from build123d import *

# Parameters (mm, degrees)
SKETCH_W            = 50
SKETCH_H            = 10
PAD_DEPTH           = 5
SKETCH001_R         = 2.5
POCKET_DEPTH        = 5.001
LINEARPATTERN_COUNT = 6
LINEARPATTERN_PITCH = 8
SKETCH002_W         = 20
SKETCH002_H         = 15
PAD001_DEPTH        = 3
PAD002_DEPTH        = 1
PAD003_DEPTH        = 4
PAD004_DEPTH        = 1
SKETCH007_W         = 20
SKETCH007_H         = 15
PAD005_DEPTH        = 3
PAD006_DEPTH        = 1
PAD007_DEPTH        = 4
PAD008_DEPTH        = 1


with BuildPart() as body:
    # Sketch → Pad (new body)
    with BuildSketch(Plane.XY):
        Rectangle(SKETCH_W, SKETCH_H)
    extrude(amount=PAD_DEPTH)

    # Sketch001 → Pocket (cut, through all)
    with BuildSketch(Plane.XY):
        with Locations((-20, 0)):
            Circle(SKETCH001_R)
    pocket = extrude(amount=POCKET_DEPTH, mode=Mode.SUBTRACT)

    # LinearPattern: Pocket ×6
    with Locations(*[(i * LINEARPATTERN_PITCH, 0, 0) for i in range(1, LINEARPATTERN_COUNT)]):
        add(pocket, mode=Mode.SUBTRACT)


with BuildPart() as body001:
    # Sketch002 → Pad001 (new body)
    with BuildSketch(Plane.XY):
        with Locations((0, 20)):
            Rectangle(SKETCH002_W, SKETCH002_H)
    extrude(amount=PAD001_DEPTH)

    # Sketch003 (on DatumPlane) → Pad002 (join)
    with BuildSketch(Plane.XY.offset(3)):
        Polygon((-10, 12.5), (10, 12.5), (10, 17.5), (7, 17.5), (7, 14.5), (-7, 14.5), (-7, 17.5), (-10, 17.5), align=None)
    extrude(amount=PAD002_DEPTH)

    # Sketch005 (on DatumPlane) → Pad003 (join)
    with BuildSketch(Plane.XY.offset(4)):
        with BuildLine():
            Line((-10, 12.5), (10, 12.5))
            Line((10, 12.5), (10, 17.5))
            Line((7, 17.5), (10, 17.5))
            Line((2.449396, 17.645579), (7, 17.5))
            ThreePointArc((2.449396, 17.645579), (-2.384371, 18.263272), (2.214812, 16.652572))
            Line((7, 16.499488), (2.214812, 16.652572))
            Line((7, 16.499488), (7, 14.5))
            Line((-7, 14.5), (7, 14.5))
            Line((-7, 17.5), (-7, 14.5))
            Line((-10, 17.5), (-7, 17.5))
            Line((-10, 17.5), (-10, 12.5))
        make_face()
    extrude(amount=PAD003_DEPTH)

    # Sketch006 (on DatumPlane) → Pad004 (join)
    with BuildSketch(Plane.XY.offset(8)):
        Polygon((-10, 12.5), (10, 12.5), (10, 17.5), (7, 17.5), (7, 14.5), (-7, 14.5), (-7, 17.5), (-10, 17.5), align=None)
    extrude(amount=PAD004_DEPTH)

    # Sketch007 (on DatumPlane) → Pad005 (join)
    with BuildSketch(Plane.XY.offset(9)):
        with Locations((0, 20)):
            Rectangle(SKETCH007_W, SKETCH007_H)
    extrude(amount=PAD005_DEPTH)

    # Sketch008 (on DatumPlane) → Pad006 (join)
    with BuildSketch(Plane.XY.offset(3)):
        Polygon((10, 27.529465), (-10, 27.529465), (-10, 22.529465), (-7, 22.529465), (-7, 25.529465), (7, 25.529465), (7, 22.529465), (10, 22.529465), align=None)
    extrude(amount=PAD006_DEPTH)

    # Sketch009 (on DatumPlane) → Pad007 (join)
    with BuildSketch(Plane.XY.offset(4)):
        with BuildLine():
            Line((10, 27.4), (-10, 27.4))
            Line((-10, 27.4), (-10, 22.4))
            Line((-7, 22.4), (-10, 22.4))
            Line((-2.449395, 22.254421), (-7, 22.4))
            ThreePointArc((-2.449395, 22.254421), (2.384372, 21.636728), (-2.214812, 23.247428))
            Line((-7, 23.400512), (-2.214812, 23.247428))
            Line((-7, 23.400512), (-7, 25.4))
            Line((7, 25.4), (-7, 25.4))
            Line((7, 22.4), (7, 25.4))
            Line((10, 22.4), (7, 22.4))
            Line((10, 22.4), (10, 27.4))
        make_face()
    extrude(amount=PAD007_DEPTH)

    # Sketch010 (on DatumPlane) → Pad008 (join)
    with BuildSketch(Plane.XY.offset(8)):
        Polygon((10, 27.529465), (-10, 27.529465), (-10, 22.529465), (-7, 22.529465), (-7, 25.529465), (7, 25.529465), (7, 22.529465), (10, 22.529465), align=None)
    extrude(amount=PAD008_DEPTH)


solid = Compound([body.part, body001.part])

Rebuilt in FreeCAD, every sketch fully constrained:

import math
import FreeCAD as App
import Part
import Sketcher
from FreeCAD import Vector


def add_polygon(sketch, points):
    """Adds a closed chain of lines whose ends are joined by coincident constraints."""
    first, n = sketch.GeometryCount, len(points)
    for a, b in zip(points, points[1:] + points[:1]):
        sketch.addGeometry(Part.LineSegment(App.Vector(*a, 0), App.Vector(*b, 0)), False)
    for i in range(n):
        sketch.addConstraint(Sketcher.Constraint("Coincident", first + i, 2, first + (i + 1) % n, 1))

doc = App.newDocument("Part")
body = doc.addObject("PartDesign::Body", "Body")

sketch1 = body.newObject("Sketcher::SketchObject", "Sketch")
sketch1.AttachmentSupport = (doc.getObject("XY_Plane"), [""])
sketch1.MapMode = "FlatFace"
add_polygon(sketch1, [(-25, 5), (-25, -5), (25, -5), (25, 5)])
sketch1.addConstraint([
    Sketcher.Constraint("Vertical", 0),
    Sketcher.Constraint("Horizontal", 1),
    Sketcher.Constraint("Vertical", 2),
    Sketcher.Constraint("Horizontal", 3),
    Sketcher.Constraint("Symmetric", 0, 2, 2, 2, -1, 1),
    Sketcher.Constraint("DistanceX", 1, 1, 1, 2, 50.0),
    Sketcher.Constraint("DistanceY", 0, 2, 0, 1, 10.0),
])
pad1 = body.newObject("PartDesign::Pad", "Pad")
pad1.Profile = sketch1
pad1.Length = 5

sketch2 = body.newObject("Sketcher::SketchObject", "Sketch001")
sketch2.AttachmentSupport = (doc.getObject("XY_Plane"), [""])
sketch2.MapMode = "FlatFace"
sketch2.addGeometry(Part.Circle(Vector(-20, 0, 0), Vector(0, 0, 1), 2.5), False)
sketch2.addConstraint([
    Sketcher.Constraint("PointOnObject", 0, 3, -1),
    Sketcher.Constraint("Diameter", 0, 5.0),
    Sketcher.Constraint("DistanceX", 0, 3, -1, 1, 20.0),
])
pocket1 = body.newObject("PartDesign::Pocket", "Pocket")
pocket1.Profile = sketch2
pocket1.Type = "ThroughAll"
pocket1.Reversed = True
doc.recompute()

linearpattern = body.newObject("PartDesign::LinearPattern", "LinearPattern")
linearpattern.Originals = [pocket1]
linearpattern.Direction = (doc.getObject("X_Axis"), [""])
linearpattern.Mode = "offset"
linearpattern.Offset = 8
linearpattern.Occurrences = 6
body.Tip = linearpattern
body2 = doc.addObject("PartDesign::Body", "Body001")

sketch3 = body2.newObject("Sketcher::SketchObject", "Sketch002")
sketch3.AttachmentSupport = (doc.getObject("XY_Plane001"), [""])
sketch3.MapMode = "FlatFace"
add_polygon(sketch3, [(-10, 28), (-10, 12), (10, 12), (10, 28)])
sketch3.addConstraint([
    Sketcher.Constraint("Vertical", 0),
    Sketcher.Constraint("Horizontal", 1),
    Sketcher.Constraint("Vertical", 2),
    Sketcher.Constraint("Horizontal", 3),
    Sketcher.Constraint("DistanceX", 1, 1, 1, 2, 20.0),
    Sketcher.Constraint("DistanceY", 0, 2, 0, 1, 15.0),
    Sketcher.Constraint("DistanceX", 0, 2, -1, 1, 10.0),
    Sketcher.Constraint("DistanceY", -1, 1, 0, 2, 12.5),
])
pad2 = body2.newObject("PartDesign::Pad", "Pad001")
pad2.Profile = sketch3
pad2.Length = 3

sketch4 = body2.newObject("Sketcher::SketchObject", "Sketch003")
sketch4.AttachmentSupport = (doc.getObject("XY_Plane001"), [""])
sketch4.MapMode = "FlatFace"
sketch4.AttachmentOffset = App.Placement(Vector(0, 0, 3), App.Rotation())
add_polygon(sketch4, [(-10, 12.5), (10, 12.5), (10, 17.5), (7, 17.5), (7, 14.5), (-7, 14.5), (-7, 17.5), (-10, 17.5)])
sketch4.addConstraint([
    Sketcher.Constraint("Horizontal", 0),
    Sketcher.Constraint("Vertical", 1),
    Sketcher.Constraint("Horizontal", 2),
    Sketcher.Constraint("Vertical", 3),
    Sketcher.Constraint("Horizontal", 4),
    Sketcher.Constraint("Vertical", 5),
    Sketcher.Constraint("Horizontal", 6),
    Sketcher.Constraint("Vertical", 7),
    Sketcher.Constraint("Symmetric", 2, 2, 5, 2, -2),
    Sketcher.Constraint("Equal", 2, 6),
    Sketcher.Constraint("Equal", 6, 3),
    Sketcher.Constraint("DistanceX", 0, 1, 0, 2, 20.0),
    Sketcher.Constraint("DistanceX", 2, 2, 2, 1, 3.0),
    Sketcher.Constraint("DistanceY", 1, 1, 1, 2, 5.0),
    Sketcher.Constraint("DistanceY", -1, 1, 0, 2, 12.5),
])
pad3 = body2.newObject("PartDesign::Pad", "Pad002")
pad3.Profile = sketch4
pad3.Length = 1

sketch5 = body2.newObject("Sketcher::SketchObject", "Sketch004")
sketch5.AttachmentSupport = (doc.getObject("XY_Plane001"), [""])
sketch5.MapMode = "FlatFace"
sketch5.AttachmentOffset = App.Placement(Vector(0, 0, 4), App.Rotation())
sketch5.addGeometry([
    Part.LineSegment(Vector(-10, 12.5, 0), Vector(10, 12.5, 0)),
    Part.LineSegment(Vector(10, 12.5, 0), Vector(10, 17.5, 0)),
    Part.LineSegment(Vector(10, 17.5, 0), Vector(7, 17.5, 0)),
    Part.LineSegment(Vector(7, 17.5, 0), Vector(2.449396, 17.645579, 0)),
    Part.ArcOfCircle(Part.Circle(Vector(0, 17.700002, 0), Vector(0, 0, 1), 2.45), math.radians(-1.27285), math.radians(334.689562)),
    Part.LineSegment(Vector(2.214812, 16.652572, 0), Vector(7, 16.499488, 0)),
    Part.LineSegment(Vector(7, 16.499488, 0), Vector(7, 14.5, 0)),
    Part.LineSegment(Vector(7, 14.5, 0), Vector(-7, 14.5, 0)),
    Part.LineSegment(Vector(-7, 14.5, 0), Vector(-7, 17.5, 0)),
    Part.LineSegment(Vector(-7, 17.5, 0), Vector(-10, 17.5, 0)),
    Part.LineSegment(Vector(-10, 17.5, 0), Vector(-10, 12.5, 0)),
], False)
sketch5.addConstraint([
    Sketcher.Constraint("Coincident", 0, 2, 1, 1),
    Sketcher.Constraint("Coincident", 1, 2, 2, 1),
    Sketcher.Constraint("Coincident", 2, 2, 3, 1),
    Sketcher.Constraint("Coincident", 3, 2, 4, 1),
    Sketcher.Constraint("Coincident", 4, 2, 5, 1),
    Sketcher.Constraint("Coincident", 5, 2, 6, 1),
    Sketcher.Constraint("Coincident", 6, 2, 7, 1),
    Sketcher.Constraint("Coincident", 7, 2, 8, 1),
    Sketcher.Constraint("Coincident", 8, 2, 9, 1),
    Sketcher.Constraint("Coincident", 9, 2, 10, 1),
    Sketcher.Constraint("Coincident", 10, 2, 0, 1),
    Sketcher.Constraint("Horizontal", 0),
    Sketcher.Constraint("Vertical", 1),
    Sketcher.Constraint("Horizontal", 2),
    Sketcher.Constraint("Vertical", 6),
    Sketcher.Constraint("Horizontal", 7),
    Sketcher.Constraint("Vertical", 8),
    Sketcher.Constraint("Horizontal", 9),
    Sketcher.Constraint("Vertical", 10),
    Sketcher.Constraint("PointOnObject", 4, 3, -2),
    Sketcher.Constraint("DistanceX", 0, 1, 0, 2, 20.0),
    Sketcher.Constraint("DistanceX", 2, 2, 2, 1, 3.0),
    Sketcher.Constraint("DistanceX", 7, 2, 7, 1, 14.0),
    Sketcher.Constraint("DistanceX", 9, 2, 9, 1, 3.0),
    Sketcher.Constraint("DistanceY", 1, 1, 1, 2, 5.0),
    Sketcher.Constraint("DistanceY", 8, 1, 8, 2, 3.0),
    Sketcher.Constraint("DistanceY", 10, 2, 10, 1, 5.0),
    Sketcher.Constraint("Radius", 4, 2.45),
    Sketcher.Constraint("DistanceX", -1, 1, 0, 2, 10.0),
    Sketcher.Constraint("DistanceY", -1, 1, 0, 2, 12.5),
    Sketcher.Constraint("DistanceY", 6, 2, 6, 1, 1.999488),
    Sketcher.Constraint("DistanceY", -1, 1, 3, 2, 17.645579),
    Sketcher.Constraint("DistanceY", -1, 1, 4, 2, 16.652572),
    Sketcher.Constraint("DistanceX", 4, 3, 4, 2, 2.214812),
])
pad4 = body2.newObject("PartDesign::Pad", "Pad003")
pad4.Profile = sketch5
pad4.Length = 4

sketch6 = body2.newObject("Sketcher::SketchObject", "Sketch005")
sketch6.AttachmentSupport = (doc.getObject("XY_Plane001"), [""])
sketch6.MapMode = "FlatFace"
sketch6.AttachmentOffset = App.Placement(Vector(0, 0, 8), App.Rotation())
add_polygon(sketch6, [(-10, 12.5), (10, 12.5), (10, 17.5), (7, 17.5), (7, 14.5), (-7, 14.5), (-7, 17.5), (-10, 17.5)])
sketch6.addConstraint([
    Sketcher.Constraint("Horizontal", 0),
    Sketcher.Constraint("Vertical", 1),
    Sketcher.Constraint("Horizontal", 2),
    Sketcher.Constraint("Vertical", 3),
    Sketcher.Constraint("Horizontal", 4),
    Sketcher.Constraint("Vertical", 5),
    Sketcher.Constraint("Horizontal", 6),
    Sketcher.Constraint("Vertical", 7),
    Sketcher.Constraint("Symmetric", 2, 2, 5, 2, -2),
    Sketcher.Constraint("Equal", 2, 6),
    Sketcher.Constraint("Equal", 6, 3),
    Sketcher.Constraint("DistanceX", 0, 1, 0, 2, 20.0),
    Sketcher.Constraint("DistanceX", 2, 2, 2, 1, 3.0),
    Sketcher.Constraint("DistanceY", 1, 1, 1, 2, 5.0),
    Sketcher.Constraint("DistanceY", -1, 1, 0, 2, 12.5),
])
pad5 = body2.newObject("PartDesign::Pad", "Pad004")
pad5.Profile = sketch6
pad5.Length = 1

sketch7 = body2.newObject("Sketcher::SketchObject", "Sketch006")
sketch7.AttachmentSupport = (doc.getObject("XY_Plane001"), [""])
sketch7.MapMode = "FlatFace"
sketch7.AttachmentOffset = App.Placement(Vector(0, 0, 9), App.Rotation())
add_polygon(sketch7, [(-10, 28), (-10, 12), (10, 12), (10, 28)])
sketch7.addConstraint([
    Sketcher.Constraint("Vertical", 0),
    Sketcher.Constraint("Horizontal", 1),
    Sketcher.Constraint("Vertical", 2),
    Sketcher.Constraint("Horizontal", 3),
    Sketcher.Constraint("DistanceX", 1, 1, 1, 2, 20.0),
    Sketcher.Constraint("DistanceY", 0, 2, 0, 1, 15.0),
    Sketcher.Constraint("DistanceX", 0, 2, -1, 1, 10.0),
    Sketcher.Constraint("DistanceY", -1, 1, 0, 2, 12.5),
])
pad6 = body2.newObject("PartDesign::Pad", "Pad005")
pad6.Profile = sketch7
pad6.Length = 3

sketch8 = body2.newObject("Sketcher::SketchObject", "Sketch007")
sketch8.AttachmentSupport = (doc.getObject("XY_Plane001"), [""])
sketch8.MapMode = "FlatFace"
sketch8.AttachmentOffset = App.Placement(Vector(0, 0, 3), App.Rotation())
add_polygon(sketch8, [(10, 27.5), (-10, 27.5), (-10, 22.5), (-7, 22.5), (-7, 25.5), (7, 25.5), (7, 22.5), (10, 22.5)])
sketch8.addConstraint([
    Sketcher.Constraint("Horizontal", 0),
    Sketcher.Constraint("Vertical", 1),
    Sketcher.Constraint("Horizontal", 2),
    Sketcher.Constraint("Vertical", 3),
    Sketcher.Constraint("Horizontal", 4),
    Sketcher.Constraint("Vertical", 5),
    Sketcher.Constraint("Horizontal", 6),
    Sketcher.Constraint("Vertical", 7),
    Sketcher.Constraint("Symmetric", 2, 2, 5, 2, -2),
    Sketcher.Constraint("Equal", 2, 6),
    Sketcher.Constraint("Equal", 6, 3),
    Sketcher.Constraint("DistanceX", 0, 2, 0, 1, 20.0),
    Sketcher.Constraint("DistanceX", 2, 1, 2, 2, 3.0),
    Sketcher.Constraint("DistanceY", 1, 2, 1, 1, 5.0),
    Sketcher.Constraint("DistanceY", -1, 1, 0, 2, 27.529465),
])
pad7 = body2.newObject("PartDesign::Pad", "Pad006")
pad7.Profile = sketch8
pad7.Length = 1

sketch9 = body2.newObject("Sketcher::SketchObject", "Sketch008")
sketch9.AttachmentSupport = (doc.getObject("XY_Plane001"), [""])
sketch9.MapMode = "FlatFace"
sketch9.AttachmentOffset = App.Placement(Vector(0, 0, 4), App.Rotation())
sketch9.addGeometry([
    Part.LineSegment(Vector(10, 27.4, 0), Vector(-10, 27.4, 0)),
    Part.LineSegment(Vector(-10, 27.4, 0), Vector(-10, 22.4, 0)),
    Part.LineSegment(Vector(-10, 22.4, 0), Vector(-7, 22.4, 0)),
    Part.LineSegment(Vector(-7, 22.4, 0), Vector(-2.4, 22.3, 0)),
    Part.ArcOfCircle(Part.Circle(Vector(0, 22.2, 0), Vector(0, 0, 1), 2.5), math.radians(179), math.radians(515)),
    Part.LineSegment(Vector(-2.2, 23.2, 0), Vector(-7, 23.4, 0)),
    Part.LineSegment(Vector(-7, 23.4, 0), Vector(-7, 25.4, 0)),
    Part.LineSegment(Vector(-7, 25.4, 0), Vector(7, 25.4, 0)),
    Part.LineSegment(Vector(7, 25.4, 0), Vector(7, 22.4, 0)),
    Part.LineSegment(Vector(7, 22.4, 0), Vector(10, 22.4, 0)),
    Part.LineSegment(Vector(10, 22.4, 0), Vector(10, 27.4, 0)),
], False)
sketch9.addConstraint([
    Sketcher.Constraint("Coincident", 0, 2, 1, 1),
    Sketcher.Constraint("Coincident", 1, 2, 2, 1),
    Sketcher.Constraint("Coincident", 2, 2, 3, 1),
    Sketcher.Constraint("Coincident", 3, 2, 4, 1),
    Sketcher.Constraint("Coincident", 4, 2, 5, 1),
    Sketcher.Constraint("Coincident", 5, 2, 6, 1),
    Sketcher.Constraint("Coincident", 6, 2, 7, 1),
    Sketcher.Constraint("Coincident", 7, 2, 8, 1),
    Sketcher.Constraint("Coincident", 8, 2, 9, 1),
    Sketcher.Constraint("Coincident", 9, 2, 10, 1),
    Sketcher.Constraint("Coincident", 10, 2, 0, 1),
    Sketcher.Constraint("Horizontal", 0),
    Sketcher.Constraint("Vertical", 1),
    Sketcher.Constraint("Horizontal", 2),
    Sketcher.Constraint("Vertical", 6),
    Sketcher.Constraint("Horizontal", 7),
    Sketcher.Constraint("Vertical", 8),
    Sketcher.Constraint("Horizontal", 9),
    Sketcher.Constraint("Vertical", 10),
    Sketcher.Constraint("Symmetric", 2, 2, 8, 2, -2),
    Sketcher.Constraint("PointOnObject", 4, 3, -2),
    Sketcher.Constraint("Parallel", 3, 5),
    Sketcher.Constraint("Vertical", 2, 2, 5, 2),
    Sketcher.Constraint("Equal", 2, 9),
    Sketcher.Constraint("Equal", 9, 8),
    Sketcher.Constraint("DistanceX", 0, 2, 0, 1, 20.0),
    Sketcher.Constraint("DistanceX", 2, 1, 2, 2, 3.0),
    Sketcher.Constraint("DistanceY", 1, 2, 1, 1, 5.0),
    Sketcher.Constraint("Radius", 4, 2.45),
    Sketcher.Constraint("DistanceY", -1, 1, 4, 3, 22.2),
    Sketcher.Constraint("DistanceY", -1, 1, 0, 2, 27.4),
    Sketcher.Constraint("DistanceY", 6, 1, 6, 2, 1.999488),
    Sketcher.Constraint("DistanceY", -1, 1, 3, 2, 22.254421),
])
pad8 = body2.newObject("PartDesign::Pad", "Pad007")
pad8.Profile = sketch9
pad8.Length = 4

sketch10 = body2.newObject("Sketcher::SketchObject", "Sketch009")
sketch10.AttachmentSupport = (doc.getObject("XY_Plane001"), [""])
sketch10.MapMode = "FlatFace"
sketch10.AttachmentOffset = App.Placement(Vector(0, 0, 8), App.Rotation())
add_polygon(sketch10, [(10, 27.5), (-10, 27.5), (-10, 22.5), (-7, 22.5), (-7, 25.5), (7, 25.5), (7, 22.5), (10, 22.5)])
sketch10.addConstraint([
    Sketcher.Constraint("Horizontal", 0),
    Sketcher.Constraint("Vertical", 1),
    Sketcher.Constraint("Horizontal", 2),
    Sketcher.Constraint("Vertical", 3),
    Sketcher.Constraint("Horizontal", 4),
    Sketcher.Constraint("Vertical", 5),
    Sketcher.Constraint("Horizontal", 6),
    Sketcher.Constraint("Vertical", 7),
    Sketcher.Constraint("Symmetric", 2, 2, 5, 2, -2),
    Sketcher.Constraint("Equal", 2, 6),
    Sketcher.Constraint("Equal", 6, 3),
    Sketcher.Constraint("DistanceX", 0, 2, 0, 1, 20.0),
    Sketcher.Constraint("DistanceX", 2, 1, 2, 2, 3.0),
    Sketcher.Constraint("DistanceY", 1, 2, 1, 1, 5.0),
    Sketcher.Constraint("DistanceY", -1, 1, 0, 2, 27.529465),
])
pad9 = body2.newObject("PartDesign::Pad", "Pad008")
pad9.Profile = sketch10
pad9.Length = 1

doc.recompute()
